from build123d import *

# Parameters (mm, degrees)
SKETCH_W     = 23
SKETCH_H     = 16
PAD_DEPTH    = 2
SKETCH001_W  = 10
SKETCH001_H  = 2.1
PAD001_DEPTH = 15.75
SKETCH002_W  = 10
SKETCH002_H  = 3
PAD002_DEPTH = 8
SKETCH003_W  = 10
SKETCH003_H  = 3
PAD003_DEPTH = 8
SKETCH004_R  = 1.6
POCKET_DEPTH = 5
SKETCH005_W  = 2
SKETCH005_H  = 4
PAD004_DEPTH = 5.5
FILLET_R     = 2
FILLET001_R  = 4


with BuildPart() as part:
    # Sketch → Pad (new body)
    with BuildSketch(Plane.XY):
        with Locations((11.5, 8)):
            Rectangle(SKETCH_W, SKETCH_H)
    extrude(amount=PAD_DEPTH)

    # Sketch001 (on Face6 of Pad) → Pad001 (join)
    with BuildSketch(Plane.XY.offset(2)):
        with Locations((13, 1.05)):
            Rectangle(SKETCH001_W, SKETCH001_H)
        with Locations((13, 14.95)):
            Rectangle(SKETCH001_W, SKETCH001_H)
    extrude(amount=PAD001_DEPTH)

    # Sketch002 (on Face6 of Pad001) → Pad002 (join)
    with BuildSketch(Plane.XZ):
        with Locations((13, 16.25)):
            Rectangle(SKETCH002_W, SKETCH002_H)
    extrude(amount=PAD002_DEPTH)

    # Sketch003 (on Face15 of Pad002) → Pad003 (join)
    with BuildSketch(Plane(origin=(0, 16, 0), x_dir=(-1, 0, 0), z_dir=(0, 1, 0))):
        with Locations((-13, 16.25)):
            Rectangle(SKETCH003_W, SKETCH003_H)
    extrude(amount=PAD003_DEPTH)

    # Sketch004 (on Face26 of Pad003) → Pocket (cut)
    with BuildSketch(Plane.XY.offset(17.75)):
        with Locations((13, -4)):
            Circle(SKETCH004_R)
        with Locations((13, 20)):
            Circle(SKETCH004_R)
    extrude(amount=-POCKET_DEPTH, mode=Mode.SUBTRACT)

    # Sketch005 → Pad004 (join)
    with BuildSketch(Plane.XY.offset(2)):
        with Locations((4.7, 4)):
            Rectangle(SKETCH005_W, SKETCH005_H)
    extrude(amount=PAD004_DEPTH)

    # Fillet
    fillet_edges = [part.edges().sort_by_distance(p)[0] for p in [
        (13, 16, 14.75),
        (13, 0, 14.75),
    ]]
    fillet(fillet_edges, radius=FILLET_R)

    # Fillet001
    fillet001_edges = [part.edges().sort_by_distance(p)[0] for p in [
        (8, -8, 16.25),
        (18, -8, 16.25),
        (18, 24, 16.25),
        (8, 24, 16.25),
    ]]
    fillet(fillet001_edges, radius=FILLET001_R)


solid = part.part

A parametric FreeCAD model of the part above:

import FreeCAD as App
import Part
import Sketcher

V = App.Vector
Q = App.Units.Quantity


def edges_at(feature, points):
    """Names of the edges that pass closest to the given points."""
    edges = feature.Shape.Edges
    near = lambda p: min(range(len(edges)), key=lambda i: edges[i].distToShape(Part.Vertex(*p))[0])
    return sorted({f"Edge{near(p) + 1}" for p in points})

doc = App.newDocument("Part")
body = doc.addObject("PartDesign::Body", "Body")

# Sketch on XY plane
sketch1 = body.newObject("Sketcher::SketchObject", "Sketch")
sketch1.AttachmentSupport = (doc.getObject("XY_Plane"), [""])
sketch1.MapMode = "FlatFace"
sketch1.addGeometry(Part.LineSegment(V(0, 16, 0), V(0, 0, 0)), False)
sketch1.addGeometry(Part.LineSegment(V(0, 0, 0), V(23, 0, 0)), False)
sketch1.addGeometry(Part.LineSegment(V(23, 0, 0), V(23, 16, 0)), False)
sketch1.addGeometry(Part.LineSegment(V(23, 16, 0), V(0, 16, 0)), False)
sketch1.addConstraint(Sketcher.Constraint("Coincident", 0, 2, 1, 1))
sketch1.addConstraint(Sketcher.Constraint("Coincident", 1, 2, 2, 1))
sketch1.addConstraint(Sketcher.Constraint("Coincident", 2, 2, 3, 1))
sketch1.addConstraint(Sketcher.Constraint("Coincident", 3, 2, 0, 1))
sketch1.addConstraint(Sketcher.Constraint("Vertical", 0))
sketch1.addConstraint(Sketcher.Constraint("Horizontal", 1))
sketch1.addConstraint(Sketcher.Constraint("Vertical", 2))
sketch1.addConstraint(Sketcher.Constraint("Horizontal", 3))
sketch1.addConstraint(Sketcher.Constraint("Coincident", 0, 2, -1, 1))
sketch1.addConstraint(Sketcher.Constraint("DistanceX", 1, 1, 1, 2, Q("23 mm")))
sketch1.addConstraint(Sketcher.Constraint("DistanceY", 0, 2, 0, 1, Q("16 mm")))
pad1 = body.newObject("PartDesign::Pad", "Pad")
pad1.Profile = sketch1
pad1.Length = 2

# Sketch on XY plane
sketch2 = body.newObject("Sketcher::SketchObject", "Sketch001")
sketch2.AttachmentSupport = (doc.getObject("XY_Plane"), [""])
sketch2.MapMode = "FlatFace"
sketch2.AttachmentOffset = App.Placement(V(0, 0, 2), App.Rotation())
sketch2.addGeometry(Part.LineSegment(V(8, 2.1, 0), V(8, 0, 0)), False)
sketch2.addGeometry(Part.LineSegment(V(8, 0, 0), V(18, 0, 0)), False)
sketch2.addGeometry(Part.LineSegment(V(18, 0, 0), V(18, 2.1, 0)), False)
sketch2.addGeometry(Part.LineSegment(V(18, 2.1, 0), V(8, 2.1, 0)), False)
sketch2.addGeometry(Part.LineSegment(V(8, 16, 0), V(8, 13.9, 0)), False)
sketch2.addGeometry(Part.LineSegment(V(8, 13.9, 0), V(18, 13.9, 0)), False)
sketch2.addGeometry(Part.LineSegment(V(18, 13.9, 0), V(18, 16, 0)), False)
sketch2.addGeometry(Part.LineSegment(V(18, 16, 0), V(8, 16, 0)), False)
sketch2.addConstraint(Sketcher.Constraint("Coincident", 0, 2, 1, 1))
sketch2.addConstraint(Sketcher.Constraint("Coincident", 1, 2, 2, 1))
sketch2.addConstraint(Sketcher.Constraint("Coincident", 2, 2, 3, 1))
sketch2.addConstraint(Sketcher.Constraint("Coincident", 3, 2, 0, 1))
sketch2.addConstraint(Sketcher.Constraint("Coincident", 4, 2, 5, 1))
sketch2.addConstraint(Sketcher.Constraint("Coincident", 5, 2, 6, 1))
sketch2.addConstraint(Sketcher.Constraint("Coincident", 6, 2, 7, 1))
sketch2.addConstraint(Sketcher.Constraint("Coincident", 7, 2, 4, 1))
sketch2.addConstraint(Sketcher.Constraint("Vertical", 0))
sketch2.addConstraint(Sketcher.Constraint("Horizontal", 1))
sketch2.addConstraint(Sketcher.Constraint("Vertical", 2))
sketch2.addConstraint(Sketcher.Constraint("Horizontal", 3))
sketch2.addConstraint(Sketcher.Constraint("Vertical", 4))
sketch2.addConstraint(Sketcher.Constraint("Horizontal", 5))
sketch2.addConstraint(Sketcher.Constraint("Vertical", 6))
sketch2.addConstraint(Sketcher.Constraint("Horizontal", 7))
sketch2.addConstraint(Sketcher.Constraint("PointOnObject", 0, 2, -1))
sketch2.addConstraint(Sketcher.Constraint("Vertical", 3, 2, 4, 2))
sketch2.addConstraint(Sketcher.Constraint("Vertical", 2, 2, 5, 2))
sketch2.addConstraint(Sketcher.Constraint("Equal", 2, 4))
sketch2.addConstraint(Sketcher.Constraint("DistanceX", 1, 1, 1, 2, Q("10 mm")))
sketch2.addConstraint(Sketcher.Constraint("DistanceY", 0, 2, 0, 1, Q("2.1 mm")))
sketch2.addConstraint(Sketcher.Constraint("DistanceX", -1, 1, 0, 2, Q("8 mm")))
sketch2.addConstraint(Sketcher.Constraint("DistanceY", -1, 1, 6, 2, Q("16 mm")))
pad2 = body.newObject("PartDesign::Pad", "Pad001")
pad2.Profile = sketch2
pad2.Length = 15.75

# Sketch on XZ plane
sketch3 = body.newObject("Sketcher::SketchObject", "Sketch002")
sketch3.AttachmentSupport = (doc.getObject("XZ_Plane"), [""])
sketch3.MapMode = "FlatFace"
sketch3.addGeometry(Part.LineSegment(V(8, 17.8, 0), V(8, 14.8, 0)), False)
sketch3.addGeometry(Part.LineSegment(V(8, 14.8, 0), V(18, 14.8, 0)), False)
sketch3.addGeometry(Part.LineSegment(V(18, 14.8, 0), V(18, 17.8, 0)), False)
sketch3.addGeometry(Part.LineSegment(V(18, 17.8, 0), V(8, 17.8, 0)), False)
sketch3.addConstraint(Sketcher.Constraint("Coincident", 0, 2, 1, 1))
sketch3.addConstraint(Sketcher.Constraint("Coincident", 1, 2, 2, 1))
sketch3.addConstraint(Sketcher.Constraint("Coincident", 2, 2, 3, 1))
sketch3.addConstraint(Sketcher.Constraint("Coincident", 3, 2, 0, 1))
sketch3.addConstraint(Sketcher.Constraint("Vertical", 0))
sketch3.addConstraint(Sketcher.Constraint("Horizontal", 1))
sketch3.addConstraint(Sketcher.Constraint("Vertical", 2))
sketch3.addConstraint(Sketcher.Constraint("Horizontal", 3))
sketch3.addConstraint(Sketcher.Constraint("DistanceX", 1, 1, 1, 2, Q("10 mm")))
sketch3.addConstraint(Sketcher.Constraint("DistanceY", 0, 2, 0, 1, Q("3 mm")))
sketch3.addConstraint(Sketcher.Constraint("DistanceX", -1, 1, 0, 2, Q("8 mm")))
sketch3.addConstraint(Sketcher.Constraint("DistanceY", -1, 1, 0, 2, Q("14.75 mm")))
pad3 = body.newObject("PartDesign::Pad", "Pad002")
pad3.Profile = sketch3
pad3.Length = 8

# Sketch on XZ plane
sketch4 = body.newObject("Sketcher::SketchObject", "Sketch003")
sketch4.AttachmentSupport = (doc.getObject("XZ_Plane"), [""])
sketch4.MapMode = "FlatFace"
sketch4.AttachmentOffset = App.Placement(V(0, 0, -16), App.Rotation())
sketch4.addGeometry(Part.LineSegment(V(18, 17.8, 0), V(18, 14.8, 0)), False)
sketch4.addGeometry(Part.LineSegment(V(18, 14.8, 0), V(8, 14.8, 0)), False)
sketch4.addGeometry(Part.LineSegment(V(8, 14.8, 0), V(8, 17.8, 0)), False)
sketch4.addGeometry(Part.LineSegment(V(8, 17.8, 0), V(18, 17.8, 0)), False)
sketch4.addConstraint(Sketcher.Constraint("Coincident", 0, 2, 1, 1))
sketch4.addConstraint(Sketcher.Constraint("Coincident", 1, 2, 2, 1))
sketch4.addConstraint(Sketcher.Constraint("Coincident", 2, 2, 3, 1))
sketch4.addConstraint(Sketcher.Constraint("Coincident", 3, 2, 0, 1))
sketch4.addConstraint(Sketcher.Constraint("Vertical", 0))
sketch4.addConstraint(Sketcher.Constraint("Horizontal", 1))
sketch4.addConstraint(Sketcher.Constraint("Vertical", 2))
sketch4.addConstraint(Sketcher.Constraint("Horizontal", 3))
sketch4.addConstraint(Sketcher.Constraint("DistanceX", 1, 2, 1, 1, Q("10 mm")))
sketch4.addConstraint(Sketcher.Constraint("DistanceY", 0, 2, 0, 1, Q("3 mm")))
sketch4.addConstraint(Sketcher.Constraint("DistanceX", -1, 1, 0, 2, Q("18 mm")))
sketch4.addConstraint(Sketcher.Constraint("DistanceY", -1, 1, 0, 2, Q("14.75 mm")))
pad4 = body.newObject("PartDesign::Pad", "Pad003")
pad4.Profile = sketch4
pad4.Length = 8
pad4.Reversed = True

# Sketch on XY plane
sketch5 = body.newObject("Sketcher::SketchObject", "Sketch004")
sketch5.AttachmentSupport = (doc.getObject("XY_Plane"), [""])
sketch5.MapMode = "FlatFace"
sketch5.AttachmentOffset = App.Placement(V(0, 0, 17.75), App.Rotation())
sketch5.addGeometry(Part.Circle(V(13, -4, 0), V(0, 0, 1), 1.6), False)
sketch5.addGeometry(Part.Circle(V(13, 20, 0), V(0, 0, 1), 1.6), False)
sketch5.addConstraint(Sketcher.Constraint("Equal", 0, 1))
sketch5.addConstraint(Sketcher.Constraint("Vertical", 0, 3, 1, 3))
sketch5.addConstraint(Sketcher.Constraint("Diameter", 0, Q("3.2 mm")))
sketch5.addConstraint(Sketcher.Constraint("DistanceX", -1, 1, 0, 3, Q("13 mm")))
sketch5.addConstraint(Sketcher.Constraint("DistanceY", 0, 3, -1, 1, Q("4 mm")))
sketch5.addConstraint(Sketcher.Constraint("DistanceY", -1, 1, 1, 3, Q("20 mm")))
pocket1 = body.newObject("PartDesign::Pocket", "Pocket")
pocket1.Profile = sketch5
pocket1.Length = 5

# Sketch on XY plane
sketch6 = body.newObject("Sketcher::SketchObject", "Sketch005")
sketch6.AttachmentSupport = (doc.getObject("XY_Plane"), [""])
sketch6.MapMode = "FlatFace"
sketch6.AttachmentOffset = App.Placement(V(0, 0, 2), App.Rotation())
sketch6.addGeometry(Part.LineSegment(V(3.7, 6, 0), V(3.7, 2, 0)), False)
sketch6.addGeometry(Part.LineSegment(V(3.7, 2, 0), V(5.7, 2, 0)), False)
sketch6.addGeometry(Part.LineSegment(V(5.7, 2, 0), V(5.7, 6, 0)), False)
sketch6.addGeometry(Part.LineSegment(V(5.7, 6, 0), V(3.7, 6, 0)), False)
sketch6.addConstraint(Sketcher.Constraint("Coincident", 0, 2, 1, 1))
sketch6.addConstraint(Sketcher.Constraint("Coincident", 1, 2, 2, 1))
sketch6.addConstraint(Sketcher.Constraint("Coincident", 2, 2, 3, 1))
sketch6.addConstraint(Sketcher.Constraint("Coincident", 3, 2, 0, 1))
sketch6.addConstraint(Sketcher.Constraint("Vertical", 0))
sketch6.addConstraint(Sketcher.Constraint("Horizontal", 1))
sketch6.addConstraint(Sketcher.Constraint("Vertical", 2))
sketch6.addConstraint(Sketcher.Constraint("Horizontal", 3))
sketch6.addConstraint(Sketcher.Constraint("DistanceX", 1, 1, 1, 2, Q("2 mm")))
sketch6.addConstraint(Sketcher.Constraint("DistanceY", 0, 2, 0, 1, Q("4 mm")))
sketch6.addConstraint(Sketcher.Constraint("DistanceY", -1, 1, 0, 2, Q("2 mm")))
sketch6.addConstraint(Sketcher.Constraint("DistanceX", -1, 1, 0, 2, Q("3.7 mm")))
pad5 = body.newObject("PartDesign::Pad", "Pad004")
pad5.Profile = sketch6
pad5.Length = 5.5
doc.recompute()

fillet = body.newObject("PartDesign::Fillet", "Fillet")
fillet.Base = (pad5, edges_at(pad5, [(13, 16, 14.75), (13, 0, 14.75)]))
fillet.Radius = 2
doc.recompute()

fillet2 = body.newObject("PartDesign::Fillet", "Fillet001")
fillet2.Base = (fillet, edges_at(fillet, [
    (8, -8, 16.25),
    (18, -8, 16.25),
    (18, 24, 16.25),
    (8, 24, 16.25),
]))
fillet2.Radius = 4

doc.recompute()
